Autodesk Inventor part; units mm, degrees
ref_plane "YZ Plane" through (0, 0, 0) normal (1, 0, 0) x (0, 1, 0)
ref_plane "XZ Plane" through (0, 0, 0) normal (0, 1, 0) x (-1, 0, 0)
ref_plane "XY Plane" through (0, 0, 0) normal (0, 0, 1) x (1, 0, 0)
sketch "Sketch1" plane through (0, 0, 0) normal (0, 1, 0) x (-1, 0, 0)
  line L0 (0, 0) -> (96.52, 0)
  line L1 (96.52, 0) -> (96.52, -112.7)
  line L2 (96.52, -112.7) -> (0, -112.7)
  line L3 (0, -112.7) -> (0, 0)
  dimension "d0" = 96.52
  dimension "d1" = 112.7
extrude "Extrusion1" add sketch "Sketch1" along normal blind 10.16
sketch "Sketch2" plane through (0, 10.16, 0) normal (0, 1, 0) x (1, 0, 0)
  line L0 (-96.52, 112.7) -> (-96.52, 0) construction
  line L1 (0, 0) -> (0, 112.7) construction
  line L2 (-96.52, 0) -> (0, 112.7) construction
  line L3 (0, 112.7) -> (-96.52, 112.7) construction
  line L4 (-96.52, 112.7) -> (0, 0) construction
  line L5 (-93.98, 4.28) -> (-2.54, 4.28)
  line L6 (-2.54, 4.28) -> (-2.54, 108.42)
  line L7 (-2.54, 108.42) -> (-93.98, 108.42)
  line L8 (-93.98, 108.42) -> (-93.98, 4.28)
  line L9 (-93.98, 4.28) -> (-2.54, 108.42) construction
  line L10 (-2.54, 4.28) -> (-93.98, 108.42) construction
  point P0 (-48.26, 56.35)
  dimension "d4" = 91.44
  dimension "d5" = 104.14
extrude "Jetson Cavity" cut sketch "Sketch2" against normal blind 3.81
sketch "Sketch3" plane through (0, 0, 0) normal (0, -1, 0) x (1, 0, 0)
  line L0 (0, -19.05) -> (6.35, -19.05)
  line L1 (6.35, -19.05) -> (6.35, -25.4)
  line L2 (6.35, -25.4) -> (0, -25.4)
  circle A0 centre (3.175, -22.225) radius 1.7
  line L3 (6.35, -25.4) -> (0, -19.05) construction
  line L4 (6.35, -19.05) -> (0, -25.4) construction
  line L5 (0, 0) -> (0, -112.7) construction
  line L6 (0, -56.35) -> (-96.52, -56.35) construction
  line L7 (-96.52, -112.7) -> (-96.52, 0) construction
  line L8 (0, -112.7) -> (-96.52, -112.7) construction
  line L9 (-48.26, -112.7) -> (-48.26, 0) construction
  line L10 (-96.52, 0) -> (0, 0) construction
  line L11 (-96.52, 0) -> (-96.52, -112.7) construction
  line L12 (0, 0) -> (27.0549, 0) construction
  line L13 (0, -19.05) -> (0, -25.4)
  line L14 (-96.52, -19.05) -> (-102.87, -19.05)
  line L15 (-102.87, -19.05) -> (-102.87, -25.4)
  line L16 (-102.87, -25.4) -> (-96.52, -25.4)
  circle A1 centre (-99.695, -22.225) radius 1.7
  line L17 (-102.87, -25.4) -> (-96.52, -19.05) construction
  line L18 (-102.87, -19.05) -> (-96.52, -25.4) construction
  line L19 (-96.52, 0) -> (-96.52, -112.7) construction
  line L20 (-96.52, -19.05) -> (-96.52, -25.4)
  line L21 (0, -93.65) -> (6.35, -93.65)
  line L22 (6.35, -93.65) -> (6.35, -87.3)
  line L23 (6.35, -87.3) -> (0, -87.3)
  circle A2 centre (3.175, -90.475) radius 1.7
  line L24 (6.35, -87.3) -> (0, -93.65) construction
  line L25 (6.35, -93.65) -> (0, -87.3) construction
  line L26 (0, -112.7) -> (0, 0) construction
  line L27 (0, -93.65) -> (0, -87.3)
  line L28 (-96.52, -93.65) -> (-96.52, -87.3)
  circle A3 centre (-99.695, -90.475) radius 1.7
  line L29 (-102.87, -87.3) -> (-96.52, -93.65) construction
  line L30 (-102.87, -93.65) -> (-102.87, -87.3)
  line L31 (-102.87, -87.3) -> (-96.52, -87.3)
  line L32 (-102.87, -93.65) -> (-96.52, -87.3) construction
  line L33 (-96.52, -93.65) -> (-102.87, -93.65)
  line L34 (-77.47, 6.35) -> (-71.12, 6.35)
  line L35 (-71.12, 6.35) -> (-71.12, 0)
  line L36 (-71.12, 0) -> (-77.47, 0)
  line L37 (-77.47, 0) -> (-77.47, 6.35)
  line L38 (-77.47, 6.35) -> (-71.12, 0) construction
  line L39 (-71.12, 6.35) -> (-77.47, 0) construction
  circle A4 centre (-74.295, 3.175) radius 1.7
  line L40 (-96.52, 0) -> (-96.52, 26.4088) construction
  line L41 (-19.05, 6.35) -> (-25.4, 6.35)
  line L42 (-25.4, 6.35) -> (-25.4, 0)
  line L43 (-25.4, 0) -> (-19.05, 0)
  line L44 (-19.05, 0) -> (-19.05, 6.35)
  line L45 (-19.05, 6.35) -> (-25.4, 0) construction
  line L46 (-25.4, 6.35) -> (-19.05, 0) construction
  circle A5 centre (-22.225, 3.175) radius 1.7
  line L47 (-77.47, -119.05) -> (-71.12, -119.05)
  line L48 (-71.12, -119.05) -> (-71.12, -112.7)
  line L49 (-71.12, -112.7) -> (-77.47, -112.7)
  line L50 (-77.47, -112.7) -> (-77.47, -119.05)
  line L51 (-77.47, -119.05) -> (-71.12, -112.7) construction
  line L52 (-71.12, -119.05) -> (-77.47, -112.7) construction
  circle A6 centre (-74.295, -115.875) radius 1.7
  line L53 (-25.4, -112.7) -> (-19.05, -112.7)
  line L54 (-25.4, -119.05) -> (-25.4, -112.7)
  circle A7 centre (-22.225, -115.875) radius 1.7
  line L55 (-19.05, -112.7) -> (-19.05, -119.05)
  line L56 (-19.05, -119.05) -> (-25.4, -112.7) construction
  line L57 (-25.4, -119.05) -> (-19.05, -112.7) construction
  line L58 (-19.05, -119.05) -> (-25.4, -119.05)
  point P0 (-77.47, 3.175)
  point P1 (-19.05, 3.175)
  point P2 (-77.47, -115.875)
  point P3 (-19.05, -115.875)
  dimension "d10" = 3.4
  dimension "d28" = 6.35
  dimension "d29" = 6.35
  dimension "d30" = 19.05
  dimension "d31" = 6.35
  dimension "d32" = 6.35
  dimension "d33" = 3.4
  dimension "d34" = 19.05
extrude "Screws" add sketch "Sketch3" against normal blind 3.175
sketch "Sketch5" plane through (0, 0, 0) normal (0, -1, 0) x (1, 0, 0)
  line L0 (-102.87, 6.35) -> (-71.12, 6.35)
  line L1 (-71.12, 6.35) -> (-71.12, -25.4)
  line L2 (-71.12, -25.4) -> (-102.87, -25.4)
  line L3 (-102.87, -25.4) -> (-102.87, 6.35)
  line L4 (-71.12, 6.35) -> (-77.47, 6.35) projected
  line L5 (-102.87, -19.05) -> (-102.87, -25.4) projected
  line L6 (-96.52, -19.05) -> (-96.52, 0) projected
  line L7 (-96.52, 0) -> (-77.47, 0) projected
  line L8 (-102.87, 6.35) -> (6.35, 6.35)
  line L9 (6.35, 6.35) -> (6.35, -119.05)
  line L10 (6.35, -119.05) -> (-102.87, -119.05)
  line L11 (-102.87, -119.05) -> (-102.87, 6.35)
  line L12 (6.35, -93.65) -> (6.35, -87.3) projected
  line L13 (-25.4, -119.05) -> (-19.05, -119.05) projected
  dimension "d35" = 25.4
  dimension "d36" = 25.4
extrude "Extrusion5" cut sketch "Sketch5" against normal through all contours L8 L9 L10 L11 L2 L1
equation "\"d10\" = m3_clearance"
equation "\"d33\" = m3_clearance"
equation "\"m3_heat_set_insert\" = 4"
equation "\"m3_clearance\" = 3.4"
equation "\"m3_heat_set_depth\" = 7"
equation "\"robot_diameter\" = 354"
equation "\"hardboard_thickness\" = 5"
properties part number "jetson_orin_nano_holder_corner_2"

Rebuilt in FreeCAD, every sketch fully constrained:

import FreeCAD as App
import Part
import Sketcher
from FreeCAD import Vector
Q = App.Units.Quantity


def add_polygon(sketch, points):
    """Adds a closed chain of lines whose ends are joined by coincident constraints."""
    first, n = sketch.GeometryCount, len(points)
    for a, b in zip(points, points[1:] + points[:1]):
        sketch.addGeometry(Part.LineSegment(App.Vector(*a, 0), App.Vector(*b, 0)), False)
    for i in range(n):
        sketch.addConstraint(Sketcher.Constraint("Coincident", first + i, 2, first + (i + 1) % n, 1))

doc = App.newDocument("Part")
params = doc.addObject("Spreadsheet::Sheet", "Params")
for row, (alias, value) in enumerate([
    ("sketch1_width", "3.8 in"),
    ("sketch1_height", "4.437 in"),
    ("pad1_length", "0.4 in"),
    ("sketch2_width", "3.6 in"),
    ("sketch2_height", "4.1 in"),
    ("pocket1_length", "0.15 in"),
    ("sketch3_width", "0.25 in"),
    ("pad2_length", "0.125 in"),
    ("sketch4_width", "4.3 in"),
    ("sketch4_width2", "3.05 in"),
    ("sketch4_height", "3.687 in"),
], start=1):
    params.set(f"A{row}", alias)
    params.set(f"B{row}", "=" + value)
    params.setAlias(f"B{row}", alias)

body = doc.addObject("PartDesign::Body", "Body")

sketch1 = body.newObject("Sketcher::SketchObject", "Sketch")
sketch1.AttachmentSupport = (doc.getObject("XZ_Plane"), [""])
sketch1.MapMode = "FlatFace"
add_polygon(sketch1, [(-97, 0), (0, 0), (0, -113), (-97, -113)])
sketch1.addConstraint([
    Sketcher.Constraint("Horizontal", 0),
    Sketcher.Constraint("Vertical", 1),
    Sketcher.Constraint("Horizontal", 2),
    Sketcher.Constraint("Vertical", 3),
    Sketcher.Constraint("Coincident", 0, 2, -1, 1),
    Sketcher.Constraint("DistanceX", 0, 1, 0, 2, Q("3.8 in")),
    Sketcher.Constraint("DistanceY", 1, 2, 1, 1, Q("4.437 in")),
])
sketch1.setExpression("Constraints[9]", "Params.sketch1_width")
sketch1.setExpression("Constraints[10]", "Params.sketch1_height")
pad1 = body.newObject("PartDesign::Pad", "Pad")
pad1.Profile = sketch1
pad1.setExpression("Length", "Params.pad1_length")
pad1.Reversed = True

sketch2 = body.newObject("Sketcher::SketchObject", "Sketch001")
sketch2.AttachmentSupport = (doc.getObject("XZ_Plane"), [""])
sketch2.MapMode = "FlatFace"
sketch2.AttachmentOffset = App.Placement(Vector(0, 0, -0.4 * 25.4), App.Rotation())
add_polygon(sketch2, [(-94, -108), (-94, -4), (-3, -4), (-3, -108)])
sketch2.addConstraint([
    Sketcher.Constraint("Vertical", 0),
    Sketcher.Constraint("Horizontal", 1),
    Sketcher.Constraint("Vertical", 2),
    Sketcher.Constraint("Horizontal", 3),
    Sketcher.Constraint("DistanceX", 1, 1, 1, 2, Q("3.6 in")),
    Sketcher.Constraint("DistanceY", 0, 1, 0, 2, Q("4.1 in")),
    Sketcher.Constraint("DistanceX", 0, 2, -1, 1, Q("3.7 in")),
    Sketcher.Constraint("DistanceY", 0, 2, -1, 1, Q("0.1685 in")),
])
sketch2.setExpression("Constraints[8]", "Params.sketch2_width")
sketch2.setExpression("Constraints[9]", "Params.sketch2_height")
pocket1 = body.newObject("PartDesign::Pocket", "Pocket")
pocket1.Profile = sketch2
pocket1.setExpression("Length", "Params.pocket1_length")
pocket1.Reversed = True

sketch3 = body.newObject("Sketcher::SketchObject", "Sketch002")
sketch3.AttachmentSupport = (doc.getObject("XZ_Plane"), [""])
sketch3.MapMode = "FlatFace"
add_polygon(sketch3, [(6.3, -19.1), (0, -19.1), (0, -25.4), (6.3, -25.4)])
sketch3.addGeometry(Part.Circle(Vector(3.2, -22.2, 0), Vector(0, 0, 1), 1.7), False)
add_polygon(sketch3, [(-96.5, -25.4), (-96.5, -19.1), (-102.9, -19.1), (-102.9, -25.4)])
sketch3.addGeometry(Part.Circle(Vector(-99.7, -22.2, 0), Vector(0, 0, 1), 1.7), False)
add_polygon(sketch3, [(0, -87.3), (0, -93.7), (6.3, -93.7), (6.3, -87.3)])
sketch3.addGeometry(Part.Circle(Vector(3.2, -90.5, 0), Vector(0, 0, 1), 1.7), False)
add_polygon(sketch3, [(-102.9, -93.7), (-96.5, -93.7), (-96.5, -87.3), (-102.9, -87.3)])
sketch3.addGeometry(Part.Circle(Vector(-99.7, -90.5, 0), Vector(0, 0, 1), 1.7), False)
add_polygon(sketch3, [(-71.1, 6.3), (-77.5, 6.3), (-77.5, 0), (-71.1, 0)])
sketch3.addGeometry(Part.Circle(Vector(-74.3, 3.2, 0), Vector(0, 0, 1), 1.7), False)
add_polygon(sketch3, [(-19.1, 0), (-19.1, 6.3), (-25.4, 6.3), (-25.4, 0)])
sketch3.addGeometry(Part.Circle(Vector(-22.2, 3.2, 0), Vector(0, 0, 1), 1.7), False)
add_polygon(sketch3, [(-77.5, -112.7), (-77.5, -119), (-71.1, -119), (-71.1, -112.7)])
sketch3.addGeometry(Part.Circle(Vector(-74.3, -115.9, 0), Vector(0, 0, 1), 1.7), False)
add_polygon(sketch3, [(-19.1, -112.7), (-25.4, -112.7), (-25.4, -119), (-19.1, -119)])
sketch3.addGeometry(Part.Circle(Vector(-22.2, -115.9, 0), Vector(0, 0, 1), 1.7), False)
sketch3.addConstraint([
    Sketcher.Constraint("Horizontal", 0),
    Sketcher.Constraint("Vertical", 1),
    Sketcher.Constraint("Horizontal", 2),
    Sketcher.Constraint("Vertical", 3),
    Sketcher.Constraint("Vertical", 5),
    Sketcher.Constraint("Horizontal", 6),
    Sketcher.Constraint("Vertical", 7),
    Sketcher.Constraint("Horizontal", 8),
    Sketcher.Constraint("Vertical", 10),
    Sketcher.Constraint("Horizontal", 11),
    Sketcher.Constraint("Vertical", 12),
    Sketcher.Constraint("Horizontal", 13),
    Sketcher.Constraint("Horizontal", 15),
    Sketcher.Constraint("Vertical", 16),
    Sketcher.Constraint("Horizontal", 17),
    Sketcher.Constraint("Vertical", 18),
    Sketcher.Constraint("Horizontal", 20),
    Sketcher.Constraint("Vertical", 21),
    Sketcher.Constraint("Horizontal", 22),
    Sketcher.Constraint("Vertical", 23),
    Sketcher.Constraint("Vertical", 25),
    Sketcher.Constraint("Horizontal", 26),
    Sketcher.Constraint("Vertical", 27),
    Sketcher.Constraint("Horizontal", 28),
    Sketcher.Constraint("Vertical", 30),
    Sketcher.Constraint("Horizontal", 31),
    Sketcher.Constraint("Vertical", 32),
    Sketcher.Constraint("Horizontal", 33),
    Sketcher.Constraint("Horizontal", 35),
    Sketcher.Constraint("Vertical", 36),
    Sketcher.Constraint("Horizontal", 37),
    Sketcher.Constraint("Vertical", 38),
    Sketcher.Constraint("Equal", 4, 9),
    Sketcher.Constraint("Equal", 9, 14),
    Sketcher.Constraint("Equal", 14, 19),
    Sketcher.Constraint("Equal", 19, 24),
    Sketcher.Constraint("Equal", 24, 29),
    Sketcher.Constraint("Equal", 29, 34),
    Sketcher.Constraint("Equal", 34, 39),
    Sketcher.Constraint("PointOnObject", 0, 2, -2),
    Sketcher.Constraint("PointOnObject", 10, 2, -2),
    Sketcher.Constraint("PointOnObject", 21, 2, -1),
    Sketcher.Constraint("PointOnObject", 27, 2, -1),
    Sketcher.Constraint("Horizontal", 4, 3, 9, 3),
    Sketcher.Constraint("Horizontal", 14, 3, 19, 3),
    Sketcher.Constraint("Horizontal", 24, 3, 29, 3),
    Sketcher.Constraint("Horizontal", 34, 3, 39, 3),
    Sketcher.Constraint("Horizontal", 3, 2, 5, 2),
    Sketcher.Constraint("Horizontal", 2, 2, 7, 2),
    Sketcher.Constraint("Horizontal", 11, 2, 15, 2),
    Sketcher.Constraint("Horizontal", 13, 2, 16, 2),
    Sketcher.Constraint("Horizontal", 23, 2, 25, 2),
    Sketcher.Constraint("Horizontal", 33, 2, 35, 2),
    Sketcher.Constraint("Horizontal", 31, 2, 36, 2),
    Sketcher.Constraint("Vertical", 4, 3, 14, 3),
    Sketcher.Constraint("Vertical", 9, 3, 19, 3),
    Sketcher.Constraint("Vertical", 24, 3, 34, 3),
    Sketcher.Constraint("Vertical", 29, 3, 39, 3),
    Sketcher.Constraint("Vertical", 3, 2, 11, 2),
    Sketcher.Constraint("Vertical", 8, 2, 15, 2),
    Sketcher.Constraint("Vertical", 7, 2, 17, 2),
    Sketcher.Constraint("Vertical", 21, 2, 30, 2),
    Sketcher.Constraint("Vertical", 23, 2, 31, 2),
    Sketcher.Constraint("Vertical", 27, 2, 35, 2),
    Sketcher.Constraint("Vertical", 28, 2, 37, 2),
    Sketcher.Constraint("Equal", 2, 6),
    Sketcher.Constraint("Equal", 17, 20),
    Sketcher.Constraint("Equal", 22, 26),
    Sketcher.Constraint("Equal", 37, 1),
    Sketcher.Constraint("Equal", 7, 10),
    Sketcher.Constraint("Equal", 18, 21),
    Sketcher.Constraint("Equal", 27, 30),
    Sketcher.Constraint("DistanceX", 0, 2, 0, 1, Q("0.25 in")),
    Sketcher.Constraint("Diameter", 4, 3.4),
    Sketcher.Constraint("DistanceY", 0, 2, -1, 1, Q("0.75 in")),
    Sketcher.Constraint("DistanceX", 25, 2, -1, 1, Q("0.75 in")),
    Sketcher.Constraint("DistanceX", 5, 2, 20, 2, Q("0.75 in")),
    Sketcher.Constraint("DistanceY", 32, 2, 15, 2, Q("0.75 in")),
    Sketcher.Constraint("DistanceX", 9, 3, 24, 3, Q("1 in")),
    Sketcher.Constraint("DistanceY", 9, 3, 24, 3, Q("1 in")),
    Sketcher.Constraint("DistanceX", 29, 3, 4, 3, Q("1 in")),
    Sketcher.Constraint("DistanceY", 34, 3, 19, 3, Q("1 in")),
    Sketcher.Constraint("DistanceX", 5, 2, -1, 1, Q("3.8 in")),
    Sketcher.Constraint("DistanceX", 9, 3, 4, 3, Q("4.05 in")),
    Sketcher.Constraint("DistanceX", -1, 1, 4, 3, Q("0.125 in")),
    Sketcher.Constraint("DistanceY", 4, 3, -1, 1, Q("0.875 in")),
    Sketcher.Constraint("DistanceY", 14, 3, -1, 1, Q("3.562 in")),
    Sketcher.Constraint("DistanceY", 10, 2, -1, 1, Q("3.687 in")),
])
sketch3.setExpression("Constraints[104]", "Params.sketch3_width")
pad2 = body.newObject("PartDesign::Pad", "Pad001")
pad2.Profile = sketch3
pad2.setExpression("Length", "Params.pad2_length")
pad2.Reversed = True

sketch4 = body.newObject("Sketcher::SketchObject", "Sketch003")
sketch4.AttachmentSupport = (doc.getObject("XZ_Plane"), [""])
sketch4.MapMode = "FlatFace"
add_polygon(sketch4, [(6, 6), (-71, 6), (-71, -25), (-103, -25), (-103, -119), (6, -119)])
sketch4.addConstraint([
    Sketcher.Constraint("Horizontal", 0),
    Sketcher.Constraint("Vertical", 1),
    Sketcher.Constraint("Horizontal", 2),
    Sketcher.Constraint("Vertical", 3),
    Sketcher.Constraint("Horizontal", 4),
    Sketcher.Constraint("Vertical", 5),
    Sketcher.Constraint("Equal", 2, 1),
    Sketcher.Constraint("DistanceY", 1, 2, -1, 1, Q("1 in")),
    Sketcher.Constraint("DistanceX", 4, 1, 4, 2, Q("4.3 in")),
    Sketcher.Constraint("DistanceX", 0, 2, 0, 1, Q("3.05 in")),
    Sketcher.Constraint("DistanceX", 0, 2, -1, 1, Q("2.8 in")),
    Sketcher.Constraint("DistanceY", 3, 2, 3, 1, Q("3.687 in")),
])
sketch4.setExpression("Constraints[14]", "Params.sketch4_width")
sketch4.setExpression("Constraints[15]", "Params.sketch4_width2")
sketch4.setExpression("Constraints[17]", "Params.sketch4_height")
pocket2 = body.newObject("PartDesign::Pocket", "Pocket001")
pocket2.Profile = sketch4
pocket2.Type = "ThroughAll"

doc.recompute()
